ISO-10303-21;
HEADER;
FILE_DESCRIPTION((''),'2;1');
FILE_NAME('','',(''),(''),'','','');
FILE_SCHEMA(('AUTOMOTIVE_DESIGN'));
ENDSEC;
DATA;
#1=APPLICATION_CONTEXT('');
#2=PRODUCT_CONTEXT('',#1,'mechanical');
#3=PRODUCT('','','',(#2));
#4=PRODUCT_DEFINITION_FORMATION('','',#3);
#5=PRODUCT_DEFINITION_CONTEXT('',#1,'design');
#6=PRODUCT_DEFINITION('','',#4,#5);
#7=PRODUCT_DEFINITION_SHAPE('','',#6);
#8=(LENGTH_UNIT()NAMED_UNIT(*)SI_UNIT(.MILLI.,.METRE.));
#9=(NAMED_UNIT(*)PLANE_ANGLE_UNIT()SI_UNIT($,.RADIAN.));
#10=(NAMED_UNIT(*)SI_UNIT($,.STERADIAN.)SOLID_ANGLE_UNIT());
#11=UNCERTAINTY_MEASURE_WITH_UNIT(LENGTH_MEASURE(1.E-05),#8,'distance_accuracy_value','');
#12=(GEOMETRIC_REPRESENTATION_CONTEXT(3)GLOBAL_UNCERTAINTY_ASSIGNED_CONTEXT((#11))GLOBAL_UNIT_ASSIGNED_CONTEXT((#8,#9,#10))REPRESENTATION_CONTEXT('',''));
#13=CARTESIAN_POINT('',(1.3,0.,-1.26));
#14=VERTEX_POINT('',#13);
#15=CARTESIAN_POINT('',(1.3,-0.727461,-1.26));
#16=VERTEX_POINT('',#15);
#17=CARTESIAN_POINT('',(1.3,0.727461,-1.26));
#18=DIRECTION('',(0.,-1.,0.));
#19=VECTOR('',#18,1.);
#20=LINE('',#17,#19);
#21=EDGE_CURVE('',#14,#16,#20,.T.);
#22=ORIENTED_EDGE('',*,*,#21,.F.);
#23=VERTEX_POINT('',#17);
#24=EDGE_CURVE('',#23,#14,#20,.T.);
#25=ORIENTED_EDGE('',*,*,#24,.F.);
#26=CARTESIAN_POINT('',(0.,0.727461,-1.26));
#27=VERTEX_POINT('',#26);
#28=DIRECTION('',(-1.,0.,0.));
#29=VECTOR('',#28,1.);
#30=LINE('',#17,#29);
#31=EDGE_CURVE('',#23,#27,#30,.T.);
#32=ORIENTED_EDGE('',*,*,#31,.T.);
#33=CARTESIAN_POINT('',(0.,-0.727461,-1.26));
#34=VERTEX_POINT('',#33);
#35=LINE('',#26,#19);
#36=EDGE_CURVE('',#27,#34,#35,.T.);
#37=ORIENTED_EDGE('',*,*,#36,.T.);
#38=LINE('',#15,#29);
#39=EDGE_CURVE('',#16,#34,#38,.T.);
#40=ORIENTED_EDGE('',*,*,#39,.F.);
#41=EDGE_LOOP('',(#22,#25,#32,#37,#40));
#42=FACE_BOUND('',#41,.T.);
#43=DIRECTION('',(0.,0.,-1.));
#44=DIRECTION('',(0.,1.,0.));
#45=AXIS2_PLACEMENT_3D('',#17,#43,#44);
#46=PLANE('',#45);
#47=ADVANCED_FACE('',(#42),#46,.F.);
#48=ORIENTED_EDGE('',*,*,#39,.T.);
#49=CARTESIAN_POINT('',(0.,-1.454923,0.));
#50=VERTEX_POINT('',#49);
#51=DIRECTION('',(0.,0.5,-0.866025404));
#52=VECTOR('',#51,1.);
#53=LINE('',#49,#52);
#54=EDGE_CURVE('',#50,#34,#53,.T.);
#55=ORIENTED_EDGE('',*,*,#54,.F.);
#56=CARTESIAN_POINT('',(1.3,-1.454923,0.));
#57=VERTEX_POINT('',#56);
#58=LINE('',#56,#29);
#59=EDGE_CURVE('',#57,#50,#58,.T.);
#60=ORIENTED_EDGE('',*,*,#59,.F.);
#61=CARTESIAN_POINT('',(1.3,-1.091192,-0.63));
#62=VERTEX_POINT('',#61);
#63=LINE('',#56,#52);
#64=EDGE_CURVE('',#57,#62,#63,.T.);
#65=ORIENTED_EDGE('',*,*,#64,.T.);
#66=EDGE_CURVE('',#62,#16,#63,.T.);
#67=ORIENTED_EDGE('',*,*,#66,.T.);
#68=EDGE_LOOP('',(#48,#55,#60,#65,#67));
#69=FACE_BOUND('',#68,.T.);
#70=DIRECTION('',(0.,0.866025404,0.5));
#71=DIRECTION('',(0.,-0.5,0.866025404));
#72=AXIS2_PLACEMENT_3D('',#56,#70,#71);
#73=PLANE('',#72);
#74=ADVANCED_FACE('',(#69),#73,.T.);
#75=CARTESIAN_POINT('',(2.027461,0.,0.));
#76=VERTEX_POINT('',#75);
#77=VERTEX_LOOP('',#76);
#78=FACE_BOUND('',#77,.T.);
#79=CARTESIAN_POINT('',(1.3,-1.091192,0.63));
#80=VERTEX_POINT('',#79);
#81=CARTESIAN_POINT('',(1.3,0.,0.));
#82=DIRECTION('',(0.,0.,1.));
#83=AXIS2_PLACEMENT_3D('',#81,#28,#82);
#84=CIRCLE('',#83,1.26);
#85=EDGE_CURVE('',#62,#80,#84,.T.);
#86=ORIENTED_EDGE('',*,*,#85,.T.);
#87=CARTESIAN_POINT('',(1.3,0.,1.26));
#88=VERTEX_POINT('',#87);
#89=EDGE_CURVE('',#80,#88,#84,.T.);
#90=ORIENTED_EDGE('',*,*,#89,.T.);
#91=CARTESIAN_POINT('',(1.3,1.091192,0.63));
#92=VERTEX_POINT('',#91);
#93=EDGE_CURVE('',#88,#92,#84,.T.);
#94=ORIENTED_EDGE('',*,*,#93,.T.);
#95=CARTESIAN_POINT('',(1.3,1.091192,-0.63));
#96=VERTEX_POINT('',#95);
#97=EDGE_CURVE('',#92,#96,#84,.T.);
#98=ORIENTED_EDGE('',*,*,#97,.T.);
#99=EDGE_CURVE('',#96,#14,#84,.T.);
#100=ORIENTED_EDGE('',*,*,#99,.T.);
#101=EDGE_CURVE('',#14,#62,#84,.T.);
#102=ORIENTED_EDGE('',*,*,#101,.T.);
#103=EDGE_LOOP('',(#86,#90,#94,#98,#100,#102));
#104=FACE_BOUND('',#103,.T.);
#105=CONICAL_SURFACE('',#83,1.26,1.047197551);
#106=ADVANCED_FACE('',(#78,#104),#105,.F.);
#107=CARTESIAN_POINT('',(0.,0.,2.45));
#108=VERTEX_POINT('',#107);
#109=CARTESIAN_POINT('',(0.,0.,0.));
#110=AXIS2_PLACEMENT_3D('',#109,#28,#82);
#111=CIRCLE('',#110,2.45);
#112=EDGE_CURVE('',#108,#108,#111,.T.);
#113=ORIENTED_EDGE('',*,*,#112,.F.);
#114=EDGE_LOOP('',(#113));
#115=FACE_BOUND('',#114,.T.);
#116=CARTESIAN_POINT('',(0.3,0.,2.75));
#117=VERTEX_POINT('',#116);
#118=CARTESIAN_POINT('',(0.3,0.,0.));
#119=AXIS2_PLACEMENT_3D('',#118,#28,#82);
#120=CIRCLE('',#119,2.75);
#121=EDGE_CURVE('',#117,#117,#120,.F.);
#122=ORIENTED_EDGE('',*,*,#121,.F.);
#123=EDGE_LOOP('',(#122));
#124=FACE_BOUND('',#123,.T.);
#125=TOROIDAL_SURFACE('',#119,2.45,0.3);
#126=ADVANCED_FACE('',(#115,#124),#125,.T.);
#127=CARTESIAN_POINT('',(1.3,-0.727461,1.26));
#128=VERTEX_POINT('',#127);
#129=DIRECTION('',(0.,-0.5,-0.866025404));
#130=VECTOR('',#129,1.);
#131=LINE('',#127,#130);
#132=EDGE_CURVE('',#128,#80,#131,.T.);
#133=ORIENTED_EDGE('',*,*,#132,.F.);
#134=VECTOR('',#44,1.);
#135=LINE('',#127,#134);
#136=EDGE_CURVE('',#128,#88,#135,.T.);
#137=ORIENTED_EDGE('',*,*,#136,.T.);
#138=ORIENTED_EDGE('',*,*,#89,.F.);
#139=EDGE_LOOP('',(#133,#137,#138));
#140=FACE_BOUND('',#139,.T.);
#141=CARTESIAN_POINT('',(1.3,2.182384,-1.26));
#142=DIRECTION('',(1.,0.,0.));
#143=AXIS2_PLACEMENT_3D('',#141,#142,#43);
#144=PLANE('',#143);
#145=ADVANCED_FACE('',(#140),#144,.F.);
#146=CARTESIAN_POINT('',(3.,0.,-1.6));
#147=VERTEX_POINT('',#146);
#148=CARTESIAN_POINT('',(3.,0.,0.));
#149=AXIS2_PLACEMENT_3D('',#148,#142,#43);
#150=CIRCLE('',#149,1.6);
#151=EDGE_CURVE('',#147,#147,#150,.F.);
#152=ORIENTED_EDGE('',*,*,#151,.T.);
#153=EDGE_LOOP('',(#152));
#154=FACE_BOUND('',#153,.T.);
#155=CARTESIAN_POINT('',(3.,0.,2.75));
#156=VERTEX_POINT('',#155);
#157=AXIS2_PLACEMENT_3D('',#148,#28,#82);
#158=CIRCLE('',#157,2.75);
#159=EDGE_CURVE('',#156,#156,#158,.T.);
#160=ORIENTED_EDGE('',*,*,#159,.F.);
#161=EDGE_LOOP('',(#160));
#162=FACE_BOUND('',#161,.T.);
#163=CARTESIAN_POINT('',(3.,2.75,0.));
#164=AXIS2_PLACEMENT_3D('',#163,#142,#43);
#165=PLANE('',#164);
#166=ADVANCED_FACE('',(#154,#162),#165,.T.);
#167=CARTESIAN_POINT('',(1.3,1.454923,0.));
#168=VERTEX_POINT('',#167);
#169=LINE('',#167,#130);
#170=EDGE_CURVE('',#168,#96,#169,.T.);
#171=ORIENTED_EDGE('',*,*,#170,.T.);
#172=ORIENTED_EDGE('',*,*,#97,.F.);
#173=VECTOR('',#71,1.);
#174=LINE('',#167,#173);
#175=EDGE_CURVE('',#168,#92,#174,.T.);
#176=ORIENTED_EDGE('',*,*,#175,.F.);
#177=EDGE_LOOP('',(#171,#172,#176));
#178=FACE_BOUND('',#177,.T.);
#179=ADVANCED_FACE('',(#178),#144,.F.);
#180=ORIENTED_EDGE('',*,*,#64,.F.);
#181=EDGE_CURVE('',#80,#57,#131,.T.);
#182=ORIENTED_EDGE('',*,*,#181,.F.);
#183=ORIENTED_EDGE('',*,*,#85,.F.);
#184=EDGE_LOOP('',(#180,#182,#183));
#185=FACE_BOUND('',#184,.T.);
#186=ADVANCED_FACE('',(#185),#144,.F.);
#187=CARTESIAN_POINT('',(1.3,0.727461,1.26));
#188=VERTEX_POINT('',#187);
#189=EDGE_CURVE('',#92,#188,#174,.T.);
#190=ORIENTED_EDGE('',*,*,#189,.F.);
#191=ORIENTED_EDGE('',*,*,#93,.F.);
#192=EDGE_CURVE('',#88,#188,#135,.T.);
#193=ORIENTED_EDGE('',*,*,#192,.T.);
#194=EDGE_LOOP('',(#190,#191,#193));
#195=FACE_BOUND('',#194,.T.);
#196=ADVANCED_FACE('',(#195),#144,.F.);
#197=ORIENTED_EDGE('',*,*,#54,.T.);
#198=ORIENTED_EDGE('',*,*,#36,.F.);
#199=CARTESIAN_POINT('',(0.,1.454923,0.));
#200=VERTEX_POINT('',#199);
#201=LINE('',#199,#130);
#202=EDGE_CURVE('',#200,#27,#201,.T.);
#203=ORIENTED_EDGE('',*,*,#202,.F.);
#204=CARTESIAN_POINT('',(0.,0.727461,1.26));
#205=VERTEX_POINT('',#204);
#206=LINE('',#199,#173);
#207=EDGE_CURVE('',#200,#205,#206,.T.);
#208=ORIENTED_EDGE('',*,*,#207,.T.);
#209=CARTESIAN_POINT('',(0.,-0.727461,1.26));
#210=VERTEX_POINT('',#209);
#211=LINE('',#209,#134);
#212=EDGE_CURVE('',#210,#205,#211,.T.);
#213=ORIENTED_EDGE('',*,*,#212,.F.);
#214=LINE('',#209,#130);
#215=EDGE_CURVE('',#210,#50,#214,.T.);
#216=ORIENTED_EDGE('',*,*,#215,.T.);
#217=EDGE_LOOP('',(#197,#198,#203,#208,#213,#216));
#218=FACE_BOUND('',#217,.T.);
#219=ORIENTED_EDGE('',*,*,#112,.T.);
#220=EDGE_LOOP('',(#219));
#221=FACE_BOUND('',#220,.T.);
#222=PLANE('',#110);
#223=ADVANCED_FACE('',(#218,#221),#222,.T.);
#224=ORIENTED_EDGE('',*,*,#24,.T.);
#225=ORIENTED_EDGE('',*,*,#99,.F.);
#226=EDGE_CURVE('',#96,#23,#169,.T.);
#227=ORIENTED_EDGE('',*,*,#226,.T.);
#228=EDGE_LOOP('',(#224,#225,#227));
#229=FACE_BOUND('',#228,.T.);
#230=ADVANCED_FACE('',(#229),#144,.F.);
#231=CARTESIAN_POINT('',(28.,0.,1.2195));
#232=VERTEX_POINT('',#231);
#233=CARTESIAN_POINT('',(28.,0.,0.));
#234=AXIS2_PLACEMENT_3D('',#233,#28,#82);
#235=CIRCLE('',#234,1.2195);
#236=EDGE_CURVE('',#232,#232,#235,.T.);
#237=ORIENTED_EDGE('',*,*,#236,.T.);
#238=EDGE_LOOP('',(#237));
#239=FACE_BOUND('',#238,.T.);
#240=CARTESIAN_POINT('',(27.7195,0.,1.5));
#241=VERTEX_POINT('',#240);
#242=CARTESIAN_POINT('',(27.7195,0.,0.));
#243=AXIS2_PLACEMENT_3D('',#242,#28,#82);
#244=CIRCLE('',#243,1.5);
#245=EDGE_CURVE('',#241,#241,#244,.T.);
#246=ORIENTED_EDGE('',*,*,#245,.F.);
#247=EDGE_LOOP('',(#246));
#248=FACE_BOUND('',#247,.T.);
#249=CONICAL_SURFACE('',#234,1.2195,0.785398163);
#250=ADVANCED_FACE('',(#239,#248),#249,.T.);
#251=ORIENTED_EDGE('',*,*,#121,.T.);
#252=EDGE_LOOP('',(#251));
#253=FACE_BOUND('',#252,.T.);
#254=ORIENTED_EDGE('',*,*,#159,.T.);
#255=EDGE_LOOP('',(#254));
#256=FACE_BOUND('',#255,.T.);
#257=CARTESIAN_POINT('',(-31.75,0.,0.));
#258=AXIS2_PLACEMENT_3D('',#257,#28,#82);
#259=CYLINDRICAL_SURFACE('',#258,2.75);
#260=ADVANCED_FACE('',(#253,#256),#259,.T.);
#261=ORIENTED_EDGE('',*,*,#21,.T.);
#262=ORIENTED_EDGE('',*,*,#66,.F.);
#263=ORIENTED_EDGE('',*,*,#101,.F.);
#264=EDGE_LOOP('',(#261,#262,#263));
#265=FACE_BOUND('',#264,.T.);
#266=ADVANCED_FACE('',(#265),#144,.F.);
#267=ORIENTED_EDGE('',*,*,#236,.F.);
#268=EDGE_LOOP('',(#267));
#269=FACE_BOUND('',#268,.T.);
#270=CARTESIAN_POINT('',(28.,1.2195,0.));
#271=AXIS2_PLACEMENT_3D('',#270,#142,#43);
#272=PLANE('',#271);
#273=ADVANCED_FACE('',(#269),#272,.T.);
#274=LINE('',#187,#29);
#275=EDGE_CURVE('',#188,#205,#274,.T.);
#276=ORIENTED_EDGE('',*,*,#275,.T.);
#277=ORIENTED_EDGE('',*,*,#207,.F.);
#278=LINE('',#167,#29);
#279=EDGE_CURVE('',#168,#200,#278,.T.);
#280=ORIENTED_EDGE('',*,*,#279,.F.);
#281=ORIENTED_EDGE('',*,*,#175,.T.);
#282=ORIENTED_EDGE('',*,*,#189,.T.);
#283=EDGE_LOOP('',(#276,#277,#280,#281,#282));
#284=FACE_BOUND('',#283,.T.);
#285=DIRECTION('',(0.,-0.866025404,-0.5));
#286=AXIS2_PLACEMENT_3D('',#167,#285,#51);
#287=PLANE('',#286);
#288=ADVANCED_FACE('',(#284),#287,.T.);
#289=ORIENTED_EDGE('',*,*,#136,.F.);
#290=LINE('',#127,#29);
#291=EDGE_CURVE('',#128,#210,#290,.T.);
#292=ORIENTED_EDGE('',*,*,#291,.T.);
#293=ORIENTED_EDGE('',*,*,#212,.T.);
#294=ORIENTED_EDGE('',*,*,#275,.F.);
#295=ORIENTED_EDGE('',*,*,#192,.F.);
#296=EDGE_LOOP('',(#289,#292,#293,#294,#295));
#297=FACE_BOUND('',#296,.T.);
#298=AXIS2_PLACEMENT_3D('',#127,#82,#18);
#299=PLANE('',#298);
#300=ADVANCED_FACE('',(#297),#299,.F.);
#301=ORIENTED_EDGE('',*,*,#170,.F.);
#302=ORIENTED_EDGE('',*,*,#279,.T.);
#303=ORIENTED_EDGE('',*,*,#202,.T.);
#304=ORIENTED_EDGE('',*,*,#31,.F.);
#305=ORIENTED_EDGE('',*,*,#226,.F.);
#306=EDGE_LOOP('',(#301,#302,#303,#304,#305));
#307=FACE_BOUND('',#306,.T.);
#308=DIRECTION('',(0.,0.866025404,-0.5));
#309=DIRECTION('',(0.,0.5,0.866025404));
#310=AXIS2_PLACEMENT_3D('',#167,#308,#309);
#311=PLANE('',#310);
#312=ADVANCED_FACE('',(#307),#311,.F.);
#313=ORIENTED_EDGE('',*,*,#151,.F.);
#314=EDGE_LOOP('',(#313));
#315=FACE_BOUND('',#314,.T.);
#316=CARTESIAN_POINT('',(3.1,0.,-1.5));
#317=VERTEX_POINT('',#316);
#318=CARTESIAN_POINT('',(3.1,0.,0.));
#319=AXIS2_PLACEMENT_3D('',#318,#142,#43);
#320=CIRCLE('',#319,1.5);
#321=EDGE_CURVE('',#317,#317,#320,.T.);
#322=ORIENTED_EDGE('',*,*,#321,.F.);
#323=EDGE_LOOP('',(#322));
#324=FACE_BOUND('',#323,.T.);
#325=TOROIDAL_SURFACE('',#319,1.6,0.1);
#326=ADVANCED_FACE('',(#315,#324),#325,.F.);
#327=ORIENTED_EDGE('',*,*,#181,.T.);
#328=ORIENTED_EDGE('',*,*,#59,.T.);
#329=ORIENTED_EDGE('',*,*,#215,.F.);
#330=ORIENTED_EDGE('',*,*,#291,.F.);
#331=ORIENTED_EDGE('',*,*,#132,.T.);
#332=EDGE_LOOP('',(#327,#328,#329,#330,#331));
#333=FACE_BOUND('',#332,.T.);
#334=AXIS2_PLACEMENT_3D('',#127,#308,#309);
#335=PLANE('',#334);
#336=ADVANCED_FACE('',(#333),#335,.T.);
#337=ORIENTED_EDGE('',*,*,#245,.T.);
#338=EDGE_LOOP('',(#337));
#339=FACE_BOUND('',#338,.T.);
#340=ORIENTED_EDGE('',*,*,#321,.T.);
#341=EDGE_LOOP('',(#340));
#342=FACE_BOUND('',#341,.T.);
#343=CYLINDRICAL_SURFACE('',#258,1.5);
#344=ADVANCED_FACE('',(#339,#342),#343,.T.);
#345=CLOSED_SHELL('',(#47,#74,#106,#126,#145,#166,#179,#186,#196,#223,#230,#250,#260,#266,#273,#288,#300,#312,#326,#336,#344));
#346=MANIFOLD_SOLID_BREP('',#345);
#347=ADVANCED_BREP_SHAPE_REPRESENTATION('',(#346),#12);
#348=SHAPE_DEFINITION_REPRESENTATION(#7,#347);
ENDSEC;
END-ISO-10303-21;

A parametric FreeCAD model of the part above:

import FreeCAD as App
import Part
import Sketcher
from FreeCAD import Vector
Q = App.Units.Quantity


def edges_at(feature, points):
    """Names of the edges that pass closest to the given points."""
    edges = feature.Shape.Edges
    near = lambda p: min(range(len(edges)), key=lambda i: edges[i].distToShape(Part.Vertex(*p))[0])
    return sorted({f"Edge{near(p) + 1}" for p in points})


def add_polygon(sketch, points):
    """Adds a closed chain of lines whose ends are joined by coincident constraints."""
    first, n = sketch.GeometryCount, len(points)
    for a, b in zip(points, points[1:] + points[:1]):
        sketch.addGeometry(Part.LineSegment(App.Vector(*a, 0), App.Vector(*b, 0)), False)
    for i in range(n):
        sketch.addConstraint(Sketcher.Constraint("Coincident", first + i, 2, first + (i + 1) % n, 1))

doc = App.newDocument("Part")
body = doc.addObject("PartDesign::Body", "Body")

# Sketch on XY plane
sketch1 = body.newObject("Sketcher::SketchObject", "Sketch")
sketch1.AttachmentSupport = (doc.getObject("XY_Plane"), [""])
sketch1.MapMode = "FlatFace"
add_polygon(sketch1, [(0, 2.75), (0, 0), (28, 0), (28, 1.22), (27.72, 1.5), (3, 1.5), (3, 2.75)])  # lines 0-6
sketch1.addConstraint(Sketcher.Constraint("Vertical", 0))
sketch1.addConstraint(Sketcher.Constraint("Horizontal", 1))
sketch1.addConstraint(Sketcher.Constraint("Vertical", 2))
sketch1.addConstraint(Sketcher.Constraint("Horizontal", 4))
sketch1.addConstraint(Sketcher.Constraint("Vertical", 5))
sketch1.addConstraint(Sketcher.Constraint("Horizontal", 6))
sketch1.addConstraint(Sketcher.Constraint("Coincident", 0, 2, -1, 1))
sketch1.addConstraint(Sketcher.Constraint("DistanceX", 1, 1, 1, 2, Q("28 mm")))
sketch1.addConstraint(Sketcher.Constraint("DistanceX", 6, 2, 6, 1, Q("3 mm")))
sketch1.addConstraint(Sketcher.Constraint("Angle", 3, Q("135 deg")))
sketch1.addConstraint(Sketcher.Constraint("DistanceY", 0, 2, 0, 1, Q("2.75 mm")))
sketch1.addConstraint(Sketcher.Constraint("DistanceY", 5, 1, 5, 2, Q("1.25 mm")))
sketch1.addConstraint(Sketcher.Constraint("DistanceX", 4, 2, 4, 1, Q("24.7195 mm")))
revolution = body.newObject("PartDesign::Revolution", "Revolution")
revolution.Profile = sketch1
revolution.ReferenceAxis = (sketch1, ["H_Axis"])
revolution.Angle = 360
doc.recompute()

fillet = body.newObject("PartDesign::Fillet", "Fillet")
fillet.Base = (revolution, edges_at(revolution, [(3, -1.5, 0)]))
fillet.Radius = 0.1
doc.recompute()

fillet2 = body.newObject("PartDesign::Fillet", "Fillet001")
fillet2.Base = (fillet, edges_at(fillet, [(0, -2.75, 0)]))
fillet2.Radius = 0.3

# Sketch on XY plane
sketch2 = body.newObject("Sketcher::SketchObject", "Sketch001")
sketch2.AttachmentSupport = (doc.getObject("XY_Plane"), [""])
sketch2.MapMode = "FlatFace"
add_polygon(sketch2, [(1.3, 1.3), (0, 1.3), (0, 0), (2, 0)])  # lines 0-3
sketch2.addConstraint(Sketcher.Constraint("Horizontal", 0))
sketch2.addConstraint(Sketcher.Constraint("Vertical", 1))
sketch2.addConstraint(Sketcher.Constraint("Horizontal", 2))
sketch2.addConstraint(Sketcher.Constraint("Coincident", 1, 2, -1, 1))
sketch2.addConstraint(Sketcher.Constraint("Angle", 3, Q("120 deg")))
sketch2.addConstraint(Sketcher.Constraint("DistanceX", 0, 2, 0, 1, Q("1.3 mm")))
sketch2.addConstraint(Sketcher.Constraint("DistanceY", 1, 2, 1, 1, Q("1.26 mm")))
groove = body.newObject("PartDesign::Groove", "Groove")
groove.Profile = sketch2
groove.ReferenceAxis = (sketch2, ["H_Axis"])
groove.Angle = 360

# Sketch on YZ plane
sketch3 = body.newObject("Sketcher::SketchObject", "Sketch002")
sketch3.AttachmentSupport = (doc.getObject("YZ_Plane"), [""])
sketch3.MapMode = "FlatFace"
add_polygon(sketch3, [(1.5, 0), (0.7, -1.3), (-0.7, -1.3), (-1.5, 0), (-0.7, 1.3), (0.7, 1.3)])  # lines 0-5
sketch3.addConstraint(Sketcher.Constraint("Horizontal", 1))
sketch3.addConstraint(Sketcher.Constraint("Horizontal", 4))
sketch3.addConstraint(Sketcher.Constraint("Symmetric", 0, 2, 3, 2, -1, 1))
sketch3.addConstraint(Sketcher.Constraint("Symmetric", 2, 2, 5, 2, -1, 1))
sketch3.addConstraint(Sketcher.Constraint("PointOnObject", 2, 2, -1))
sketch3.addConstraint(Sketcher.Constraint("Parallel", 2, 5))
sketch3.addConstraint(Sketcher.Constraint("Vertical", 1, 2, 3, 2))
sketch3.addConstraint(Sketcher.Constraint("Angle", 0, Q("-120 deg")))
sketch3.addConstraint(Sketcher.Constraint("DistanceY", 0, 2, -1, 1, Q("1.26 mm")))
sketch3.addConstraint(Sketcher.Constraint("DistanceX", 1, 2, 1, 1, Q("1.454923 mm")))
pocket1 = body.newObject("PartDesign::Pocket", "Pocket")
pocket1.Profile = sketch3
pocket1.Length = 1.3
pocket1.Reversed = True

doc.recompute()
